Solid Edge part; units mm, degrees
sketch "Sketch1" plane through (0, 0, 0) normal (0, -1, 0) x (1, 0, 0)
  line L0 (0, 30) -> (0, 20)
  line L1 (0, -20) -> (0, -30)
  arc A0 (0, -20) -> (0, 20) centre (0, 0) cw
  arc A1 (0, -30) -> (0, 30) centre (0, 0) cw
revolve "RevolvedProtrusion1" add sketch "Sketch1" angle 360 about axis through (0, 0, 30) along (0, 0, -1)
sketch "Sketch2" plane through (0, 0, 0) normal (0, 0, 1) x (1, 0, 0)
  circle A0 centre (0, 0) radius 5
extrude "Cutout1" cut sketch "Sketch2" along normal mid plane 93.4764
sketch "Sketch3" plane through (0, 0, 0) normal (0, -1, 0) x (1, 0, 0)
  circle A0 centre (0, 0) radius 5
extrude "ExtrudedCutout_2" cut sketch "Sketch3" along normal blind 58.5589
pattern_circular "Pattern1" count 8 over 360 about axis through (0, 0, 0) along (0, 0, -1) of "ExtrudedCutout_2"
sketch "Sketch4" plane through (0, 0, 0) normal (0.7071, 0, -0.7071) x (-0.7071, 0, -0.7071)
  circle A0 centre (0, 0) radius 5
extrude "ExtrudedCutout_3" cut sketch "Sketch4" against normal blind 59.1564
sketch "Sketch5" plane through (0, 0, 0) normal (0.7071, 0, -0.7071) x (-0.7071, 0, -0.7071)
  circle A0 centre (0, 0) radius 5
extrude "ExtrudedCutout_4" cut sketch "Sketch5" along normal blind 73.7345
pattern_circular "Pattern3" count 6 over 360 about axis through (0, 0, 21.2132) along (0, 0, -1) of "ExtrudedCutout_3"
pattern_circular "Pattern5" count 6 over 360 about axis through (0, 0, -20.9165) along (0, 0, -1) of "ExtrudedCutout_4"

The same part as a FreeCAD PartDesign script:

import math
import FreeCAD as App
import Part
import Sketcher
from FreeCAD import Vector
Q = App.Units.Quantity

doc = App.newDocument("Part")
body = doc.addObject("PartDesign::Body", "Body")

# Sketch on XZ plane
sketch1 = body.newObject("Sketcher::SketchObject", "Sketch")
sketch1.AttachmentSupport = (doc.getObject("XZ_Plane"), [""])
sketch1.MapMode = "FlatFace"
sketch1.addGeometry(Part.LineSegment(Vector(0, 20, 0), Vector(0, 30, 0)), False)
sketch1.addGeometry(Part.ArcOfCircle(Part.Circle(Vector(0, 0, 0), Vector(0, 0, 1), 30), math.radians(90), math.radians(270)), False)
sketch1.addGeometry(Part.LineSegment(Vector(0, -30, 0), Vector(0, -20, 0)), False)
sketch1.addGeometry(Part.ArcOfCircle(Part.Circle(Vector(0, 0, 0), Vector(0, 0, 1), 20), math.radians(90), math.radians(270)), False)
sketch1.addConstraint(Sketcher.Constraint("Coincident", 0, 2, 1, 1))
sketch1.addConstraint(Sketcher.Constraint("Coincident", 1, 2, 2, 1))
sketch1.addConstraint(Sketcher.Constraint("Coincident", 2, 2, 3, 2))
sketch1.addConstraint(Sketcher.Constraint("Coincident", 3, 1, 0, 1))
sketch1.addConstraint(Sketcher.Constraint("Vertical", 0))
sketch1.addConstraint(Sketcher.Constraint("Vertical", 2))
sketch1.addConstraint(Sketcher.Constraint("Coincident", 1, 3, -1, 1))
sketch1.addConstraint(Sketcher.Constraint("Coincident", 3, 3, -1, 1))
sketch1.addConstraint(Sketcher.Constraint("PointOnObject", 0, 2, -2))
sketch1.addConstraint(Sketcher.Constraint("PointOnObject", 1, 2, -2))
sketch1.addConstraint(Sketcher.Constraint("Radius", 1, Q("1.1811 in")))
sketch1.addConstraint(Sketcher.Constraint("Radius", 3, Q("0.7874 in")))
revolution = body.newObject("PartDesign::Revolution", "Revolution")
revolution.Profile = sketch1
revolution.ReferenceAxis = (sketch1, ["V_Axis"])
revolution.Angle = 360

# Sketch on XY plane
sketch2 = body.newObject("Sketcher::SketchObject", "Sketch001")
sketch2.AttachmentSupport = (doc.getObject("XY_Plane"), [""])
sketch2.MapMode = "FlatFace"
sketch2.addGeometry(Part.Circle(Vector(0, 0, 0), Vector(0, 0, 1), 5), False)
sketch2.addConstraint(Sketcher.Constraint("Coincident", 0, 3, -1, 1))
sketch2.addConstraint(Sketcher.Constraint("Diameter", 0, Q("0.3937 in")))
pocket1 = body.newObject("PartDesign::Pocket", "Pocket")
pocket1.Profile = sketch2
pocket1.Length = 93.4764
pocket1.Midplane = True

# Sketch on XZ plane
sketch3 = body.newObject("Sketcher::SketchObject", "Sketch002")
sketch3.AttachmentSupport = (doc.getObject("XZ_Plane"), [""])
sketch3.MapMode = "FlatFace"
sketch3.addGeometry(Part.Circle(Vector(0, 0, 0), Vector(0, 0, 1), 5), False)
sketch3.addConstraint(Sketcher.Constraint("Coincident", 0, 3, -1, 1))
sketch3.addConstraint(Sketcher.Constraint("Diameter", 0, Q("0.3937 in")))
pocket2 = body.newObject("PartDesign::Pocket", "Pocket001")
pocket2.Profile = sketch3
pocket2.Length = 58.5589
pocket2.Reversed = True
doc.recompute()

polarpattern = body.newObject("PartDesign::PolarPattern", "PolarPattern")
polarpattern.Originals = [pocket2]
polarpattern.Axis = (doc.getObject("Z_Axis"), [""])
polarpattern.Angle = 360
polarpattern.Occurrences = 8
body.Tip = polarpattern

# Sketch on an angled plane
sketch4 = body.newObject("Sketcher::SketchObject", "Sketch003")
sketch4.Placement = App.Placement(Vector(0, 0, 0), App.Rotation(Vector(-0.707106781, 0, -0.707106781), Vector(0, 0.999999999, 0), Vector(0.707106781, 0, -0.707106781), "ZXY"))
sketch4.addGeometry(Part.Circle(Vector(0, 0, 0), Vector(0, 0, 1), 5), False)
sketch4.addConstraint(Sketcher.Constraint("Coincident", 0, 3, -1, 1))
sketch4.addConstraint(Sketcher.Constraint("Diameter", 0, Q("0.3937 in")))
pocket3 = body.newObject("PartDesign::Pocket", "Pocket002")
pocket3.Profile = sketch4
pocket3.Length = Q("2.3289921 in")

# Sketch on an angled plane
sketch5 = body.newObject("Sketcher::SketchObject", "Sketch004")
sketch5.Placement = App.Placement(Vector(0, 0, 0), App.Rotation(Vector(-0.707106781, 0, -0.707106781), Vector(0, 0.999999999, 0), Vector(0.707106781, 0, -0.707106781), "ZXY"))
sketch5.addGeometry(Part.Circle(Vector(0, 0, 0), Vector(0, 0, 1), 5), False)
sketch5.addConstraint(Sketcher.Constraint("Coincident", 0, 3, -1, 1))
sketch5.addConstraint(Sketcher.Constraint("Diameter", 0, Q("0.3937 in")))
pocket4 = body.newObject("PartDesign::Pocket", "Pocket003")
pocket4.Profile = sketch5
pocket4.Length = 73.7345
pocket4.Reversed = True
doc.recompute()

polarpattern2 = body.newObject("PartDesign::PolarPattern", "PolarPattern001")
polarpattern2.Originals = [pocket3]
polarpattern2.Axis = (doc.getObject("Z_Axis"), [""])
polarpattern2.Angle = 360
polarpattern2.Occurrences = 6
body.Tip = polarpattern2
doc.recompute()

polarpattern3 = body.newObject("PartDesign::PolarPattern", "PolarPattern002")
polarpattern3.Originals = [pocket4]
polarpattern3.Axis = (doc.getObject("Z_Axis"), [""])
polarpattern3.Angle = 360
polarpattern3.Occurrences = 6
body.Tip = polarpattern3

doc.recompute()
